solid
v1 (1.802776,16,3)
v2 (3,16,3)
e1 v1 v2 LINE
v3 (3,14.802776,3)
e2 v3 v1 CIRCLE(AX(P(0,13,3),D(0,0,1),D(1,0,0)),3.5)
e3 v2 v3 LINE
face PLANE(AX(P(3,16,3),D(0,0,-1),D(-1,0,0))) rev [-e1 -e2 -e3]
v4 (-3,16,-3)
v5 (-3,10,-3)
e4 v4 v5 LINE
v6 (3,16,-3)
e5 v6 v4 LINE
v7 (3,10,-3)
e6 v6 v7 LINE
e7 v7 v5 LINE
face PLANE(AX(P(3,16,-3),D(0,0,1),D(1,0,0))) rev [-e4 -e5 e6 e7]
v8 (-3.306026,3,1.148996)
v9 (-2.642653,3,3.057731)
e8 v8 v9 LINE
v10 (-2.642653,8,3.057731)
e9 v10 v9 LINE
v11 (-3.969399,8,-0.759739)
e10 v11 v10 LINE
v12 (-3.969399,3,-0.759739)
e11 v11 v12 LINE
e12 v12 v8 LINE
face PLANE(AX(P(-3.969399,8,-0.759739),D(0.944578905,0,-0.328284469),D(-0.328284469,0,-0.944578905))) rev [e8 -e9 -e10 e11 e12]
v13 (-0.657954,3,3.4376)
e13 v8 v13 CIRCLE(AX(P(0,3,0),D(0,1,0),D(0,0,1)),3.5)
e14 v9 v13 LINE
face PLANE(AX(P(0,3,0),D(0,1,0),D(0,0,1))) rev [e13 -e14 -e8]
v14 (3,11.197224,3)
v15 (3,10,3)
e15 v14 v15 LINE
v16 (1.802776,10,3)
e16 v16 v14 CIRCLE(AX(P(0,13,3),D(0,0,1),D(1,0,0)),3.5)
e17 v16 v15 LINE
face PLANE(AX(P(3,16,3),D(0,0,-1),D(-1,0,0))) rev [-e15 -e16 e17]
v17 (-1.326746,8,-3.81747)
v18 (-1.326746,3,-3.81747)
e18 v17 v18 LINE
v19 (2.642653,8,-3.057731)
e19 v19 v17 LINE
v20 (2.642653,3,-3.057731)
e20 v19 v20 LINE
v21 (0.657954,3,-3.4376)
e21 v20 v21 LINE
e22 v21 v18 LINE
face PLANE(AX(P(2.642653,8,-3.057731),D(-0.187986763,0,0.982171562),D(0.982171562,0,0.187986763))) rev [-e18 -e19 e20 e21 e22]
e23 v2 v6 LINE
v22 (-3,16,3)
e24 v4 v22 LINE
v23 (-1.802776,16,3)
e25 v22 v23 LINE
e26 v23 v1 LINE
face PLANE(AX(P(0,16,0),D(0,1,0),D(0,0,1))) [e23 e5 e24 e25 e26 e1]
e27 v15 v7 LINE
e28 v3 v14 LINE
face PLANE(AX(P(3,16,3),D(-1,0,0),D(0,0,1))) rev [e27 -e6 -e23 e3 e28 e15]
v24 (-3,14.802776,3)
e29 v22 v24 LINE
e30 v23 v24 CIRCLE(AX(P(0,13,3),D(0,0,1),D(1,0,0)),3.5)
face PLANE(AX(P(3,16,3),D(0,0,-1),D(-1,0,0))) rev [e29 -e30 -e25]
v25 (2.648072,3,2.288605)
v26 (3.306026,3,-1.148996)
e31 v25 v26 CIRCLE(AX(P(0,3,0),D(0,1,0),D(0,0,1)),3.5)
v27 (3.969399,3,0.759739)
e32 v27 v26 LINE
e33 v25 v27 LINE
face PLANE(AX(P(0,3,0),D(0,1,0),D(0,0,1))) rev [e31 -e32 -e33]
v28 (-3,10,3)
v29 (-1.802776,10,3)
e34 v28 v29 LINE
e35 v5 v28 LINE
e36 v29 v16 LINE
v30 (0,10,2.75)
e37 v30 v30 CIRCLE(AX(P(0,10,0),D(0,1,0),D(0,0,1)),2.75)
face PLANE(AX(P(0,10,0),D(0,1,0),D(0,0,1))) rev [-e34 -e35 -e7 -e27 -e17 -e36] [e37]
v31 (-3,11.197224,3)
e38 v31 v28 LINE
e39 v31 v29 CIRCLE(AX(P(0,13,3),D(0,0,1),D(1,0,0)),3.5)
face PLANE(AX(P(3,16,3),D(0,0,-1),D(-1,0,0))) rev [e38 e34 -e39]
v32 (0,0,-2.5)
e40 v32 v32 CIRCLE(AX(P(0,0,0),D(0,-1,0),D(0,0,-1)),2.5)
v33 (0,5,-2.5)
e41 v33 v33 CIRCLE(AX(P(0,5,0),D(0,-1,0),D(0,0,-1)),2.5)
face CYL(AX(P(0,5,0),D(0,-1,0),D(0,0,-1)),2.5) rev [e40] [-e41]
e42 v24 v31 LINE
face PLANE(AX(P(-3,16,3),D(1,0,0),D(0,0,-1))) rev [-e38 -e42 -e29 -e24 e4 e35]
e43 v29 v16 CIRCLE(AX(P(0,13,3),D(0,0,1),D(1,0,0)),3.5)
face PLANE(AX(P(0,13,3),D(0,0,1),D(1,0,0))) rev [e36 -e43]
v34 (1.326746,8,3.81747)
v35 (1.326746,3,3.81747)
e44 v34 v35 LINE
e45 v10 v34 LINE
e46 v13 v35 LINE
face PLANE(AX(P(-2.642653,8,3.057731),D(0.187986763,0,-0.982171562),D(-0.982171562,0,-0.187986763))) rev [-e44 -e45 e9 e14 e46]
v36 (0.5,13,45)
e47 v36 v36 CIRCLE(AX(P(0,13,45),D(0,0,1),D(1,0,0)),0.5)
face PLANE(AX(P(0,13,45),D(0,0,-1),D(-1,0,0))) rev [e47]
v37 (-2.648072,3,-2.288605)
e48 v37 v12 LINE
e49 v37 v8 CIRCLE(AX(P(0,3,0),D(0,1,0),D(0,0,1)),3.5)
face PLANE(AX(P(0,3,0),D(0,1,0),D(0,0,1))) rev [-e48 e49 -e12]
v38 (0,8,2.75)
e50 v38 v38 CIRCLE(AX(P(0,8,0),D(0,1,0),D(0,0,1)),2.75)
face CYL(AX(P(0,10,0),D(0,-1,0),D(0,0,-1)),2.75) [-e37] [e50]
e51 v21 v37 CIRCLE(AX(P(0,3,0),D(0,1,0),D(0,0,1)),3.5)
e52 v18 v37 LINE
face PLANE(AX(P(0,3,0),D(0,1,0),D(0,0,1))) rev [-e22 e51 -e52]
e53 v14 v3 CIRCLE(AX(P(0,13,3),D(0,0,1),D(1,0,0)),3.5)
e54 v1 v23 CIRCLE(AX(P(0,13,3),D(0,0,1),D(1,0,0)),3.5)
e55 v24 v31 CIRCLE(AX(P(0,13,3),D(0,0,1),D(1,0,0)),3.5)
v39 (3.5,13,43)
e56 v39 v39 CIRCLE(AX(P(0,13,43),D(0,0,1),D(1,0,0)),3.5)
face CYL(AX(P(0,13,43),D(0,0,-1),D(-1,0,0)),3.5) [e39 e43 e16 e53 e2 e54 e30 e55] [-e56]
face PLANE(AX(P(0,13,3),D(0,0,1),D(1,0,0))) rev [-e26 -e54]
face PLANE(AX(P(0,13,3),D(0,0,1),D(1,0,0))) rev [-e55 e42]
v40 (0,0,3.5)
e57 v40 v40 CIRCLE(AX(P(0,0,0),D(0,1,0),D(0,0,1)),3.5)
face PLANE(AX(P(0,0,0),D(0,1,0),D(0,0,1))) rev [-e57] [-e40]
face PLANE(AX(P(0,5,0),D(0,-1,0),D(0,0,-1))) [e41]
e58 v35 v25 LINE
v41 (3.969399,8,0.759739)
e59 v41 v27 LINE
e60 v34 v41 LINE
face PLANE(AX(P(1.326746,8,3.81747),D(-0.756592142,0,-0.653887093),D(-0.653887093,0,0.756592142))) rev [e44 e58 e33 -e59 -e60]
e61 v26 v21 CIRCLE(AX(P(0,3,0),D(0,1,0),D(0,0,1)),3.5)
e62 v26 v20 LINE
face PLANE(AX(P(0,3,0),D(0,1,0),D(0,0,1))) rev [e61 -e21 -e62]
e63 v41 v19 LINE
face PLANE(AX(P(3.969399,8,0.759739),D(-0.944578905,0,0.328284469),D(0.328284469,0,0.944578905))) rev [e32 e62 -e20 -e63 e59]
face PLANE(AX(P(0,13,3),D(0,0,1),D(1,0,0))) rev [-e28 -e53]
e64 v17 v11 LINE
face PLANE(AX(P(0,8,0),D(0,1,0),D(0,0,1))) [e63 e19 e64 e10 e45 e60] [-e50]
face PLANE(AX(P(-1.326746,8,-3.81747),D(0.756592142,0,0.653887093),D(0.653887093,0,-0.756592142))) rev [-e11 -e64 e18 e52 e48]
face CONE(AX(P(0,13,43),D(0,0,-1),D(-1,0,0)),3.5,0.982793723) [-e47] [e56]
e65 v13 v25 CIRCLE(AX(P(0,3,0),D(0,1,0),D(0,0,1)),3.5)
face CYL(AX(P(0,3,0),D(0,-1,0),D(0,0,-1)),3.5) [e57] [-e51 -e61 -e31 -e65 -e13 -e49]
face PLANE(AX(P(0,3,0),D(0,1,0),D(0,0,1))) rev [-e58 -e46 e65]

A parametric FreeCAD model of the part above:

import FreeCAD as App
import Part
import Sketcher

V = App.Vector


def add_polygon(sketch, points):
    """Adds a closed chain of lines whose ends are joined by coincident constraints."""
    first, n = sketch.GeometryCount, len(points)
    for a, b in zip(points, points[1:] + points[:1]):
        sketch.addGeometry(Part.LineSegment(App.Vector(*a, 0), App.Vector(*b, 0)), False)
    for i in range(n):
        sketch.addConstraint(Sketcher.Constraint("Coincident", first + i, 2, first + (i + 1) % n, 1))

doc = App.newDocument("Part")
body = doc.addObject("PartDesign::Body", "Body")

sketch1 = doc.addObject("Sketcher::SketchObject", "Sketch")
body.addObject(sketch1)
sketch1.AttachmentSupport = (doc.XZ_Plane, [""])
sketch1.MapMode = "FlatFace"
sketch1.addGeometry(Part.Circle(V(0, 0, 0), V(0, 0, 1), 3.5), False)
sketch1.addConstraint(Sketcher.Constraint("Coincident", 0, 3, -1, 1))
sketch1.addConstraint(Sketcher.Constraint("Diameter", 0, 7.0))
pad1 = doc.addObject("PartDesign::Pad", "Pad")
body.addObject(pad1)
pad1.Profile = sketch1
pad1.Length = 3
pad1.Reversed = True

sketch2 = doc.addObject("Sketcher::SketchObject", "Sketch001")
body.addObject(sketch2)
sketch2.AttachmentSupport = (doc.XZ_Plane, [""])
sketch2.MapMode = "FlatFace"
sketch2.AttachmentOffset = App.Placement(V(0, 0, -3), App.Rotation())
add_polygon(sketch2, [(2.642653, -3.057731), (-1.326746, -3.81747), (-3.969399, -0.759739), (-2.642653, 3.057731), (1.326746, 3.81747), (3.969399, 0.759739)])
sketch2.addConstraint(Sketcher.Constraint("Symmetric", 0, 2, 3, 2, -1, 1))
sketch2.addConstraint(Sketcher.Constraint("Symmetric", 1, 2, 4, 2, -1, 1))
sketch2.addConstraint(Sketcher.Constraint("Symmetric", 2, 2, 5, 2, -1, 1))
sketch2.addConstraint(Sketcher.Constraint("Equal", 0, 1))
sketch2.addConstraint(Sketcher.Constraint("Equal", 1, 2))
sketch2.addConstraint(Sketcher.Constraint("DistanceX", 1, 2, -1, 1, 3.969399))
sketch2.addConstraint(Sketcher.Constraint("DistanceY", 0, 2, 2, 2, 6.875201))
sketch2.addConstraint(Sketcher.Constraint("DistanceX", 2, 2, 3, 2, 3.969399))
sketch2.addConstraint(Sketcher.Constraint("Distance", 0, 4.041452))
pad2 = doc.addObject("PartDesign::Pad", "Pad001")
body.addObject(pad2)
pad2.Profile = sketch2
pad2.Length = 5
pad2.Reversed = True

sketch3 = doc.addObject("Sketcher::SketchObject", "Sketch002")
body.addObject(sketch3)
sketch3.AttachmentSupport = (doc.XZ_Plane, [""])
sketch3.MapMode = "FlatFace"
sketch3.AttachmentOffset = App.Placement(V(0, 0, -8), App.Rotation())
sketch3.addGeometry(Part.Circle(V(0, 0, 0), V(0, 0, 1), 2.75), False)
sketch3.addConstraint(Sketcher.Constraint("Coincident", 0, 3, -1, 1))
sketch3.addConstraint(Sketcher.Constraint("Diameter", 0, 5.5))
pad3 = doc.addObject("PartDesign::Pad", "Pad002")
body.addObject(pad3)
pad3.Profile = sketch3
pad3.Length = 2
pad3.Reversed = True

sketch4 = doc.addObject("Sketcher::SketchObject", "Sketch003")
body.addObject(sketch4)
sketch4.AttachmentSupport = (doc.XZ_Plane, [""])
sketch4.MapMode = "FlatFace"
sketch4.addGeometry(Part.Circle(V(0, 0, 0), V(0, 0, 1), 2.5), False)
sketch4.addConstraint(Sketcher.Constraint("Coincident", 0, 3, -1, 1))
sketch4.addConstraint(Sketcher.Constraint("Diameter", 0, 5.0))
pocket1 = doc.addObject("PartDesign::Pocket", "Pocket")
body.addObject(pocket1)
pocket1.Profile = sketch4
pocket1.Length = 5

sketch5 = doc.addObject("Sketcher::SketchObject", "Sketch004")
body.addObject(sketch5)
sketch5.AttachmentSupport = (doc.XZ_Plane, [""])
sketch5.MapMode = "FlatFace"
sketch5.AttachmentOffset = App.Placement(V(0, 0, -10), App.Rotation())
add_polygon(sketch5, [(-3, -3), (-3, 3), (3, 3), (3, -3)])
sketch5.addConstraint(Sketcher.Constraint("Vertical", 0))
sketch5.addConstraint(Sketcher.Constraint("Horizontal", 1))
sketch5.addConstraint(Sketcher.Constraint("Vertical", 2))
sketch5.addConstraint(Sketcher.Constraint("Horizontal", 3))
sketch5.addConstraint(Sketcher.Constraint("Symmetric", 0, 2, 2, 2, -1, 1))
sketch5.addConstraint(Sketcher.Constraint("Equal", 3, 0))
sketch5.addConstraint(Sketcher.Constraint("DistanceX", 1, 1, 1, 2, 6.0))
pad4 = doc.addObject("PartDesign::Pad", "Pad003")
body.addObject(pad4)
pad4.Profile = sketch5
pad4.Length = 6
pad4.Reversed = True

sketch6 = doc.addObject("Sketcher::SketchObject", "Sketch005")
body.addObject(sketch6)
sketch6.AttachmentSupport = (doc.XY_Plane, [""])
sketch6.MapMode = "FlatFace"
sketch6.AttachmentOffset = App.Placement(V(0, 0, 3), App.Rotation())
sketch6.addGeometry(Part.Circle(V(0, 13, 0), V(0, 0, 1), 3.5), False)
sketch6.addConstraint(Sketcher.Constraint("PointOnObject", 0, 3, -2))
sketch6.addConstraint(Sketcher.Constraint("Diameter", 0, 7.0))
sketch6.addConstraint(Sketcher.Constraint("DistanceY", -1, 1, 0, 3, 13.0))
pad5 = doc.addObject("PartDesign::Pad", "Pad004")
body.addObject(pad5)
pad5.Profile = sketch6
pad5.Length = 40

sketch7 = doc.addObject("Sketcher::SketchObject", "Sketch006")
body.addObject(sketch7)
sketch7.AttachmentSupport = (doc.YZ_Plane, [""])
sketch7.MapMode = "FlatFace"
add_polygon(sketch7, [(13, 43), (16.5, 43), (13.5, 45), (13, 45)])
sketch7.addGeometry(Part.LineSegment(V(13, 45, 0), V(13, 43, 0)), True)
sketch7.addConstraint(Sketcher.Constraint("Horizontal", 0))
sketch7.addConstraint(Sketcher.Constraint("Horizontal", 2))
sketch7.addConstraint(Sketcher.Constraint("Vertical", 3))
sketch7.addConstraint(Sketcher.Constraint("Vertical", 4))
sketch7.addConstraint(Sketcher.Constraint("Coincident", 4, 1, 2, 2))
sketch7.addConstraint(Sketcher.Constraint("Horizontal", 0, 2, 4, 2))
sketch7.addConstraint(Sketcher.Constraint("DistanceY", 3, 2, 3, 1, 2.0))
sketch7.addConstraint(Sketcher.Constraint("DistanceX", 0, 1, 0, 2, 3.5))
sketch7.addConstraint(Sketcher.Constraint("DistanceX", 2, 2, 2, 1, 0.5))
sketch7.addConstraint(Sketcher.Constraint("DistanceY", -1, 1, 0, 2, 43.0))
sketch7.addConstraint(Sketcher.Constraint("DistanceX", -1, 1, 2, 2, 13.0))
revolution = doc.addObject("PartDesign::Revolution", "Revolution")
body.addObject(revolution)
revolution.Profile = sketch7
revolution.ReferenceAxis = (sketch7, ["Axis0"])
revolution.Angle = 360

doc.recompute()
